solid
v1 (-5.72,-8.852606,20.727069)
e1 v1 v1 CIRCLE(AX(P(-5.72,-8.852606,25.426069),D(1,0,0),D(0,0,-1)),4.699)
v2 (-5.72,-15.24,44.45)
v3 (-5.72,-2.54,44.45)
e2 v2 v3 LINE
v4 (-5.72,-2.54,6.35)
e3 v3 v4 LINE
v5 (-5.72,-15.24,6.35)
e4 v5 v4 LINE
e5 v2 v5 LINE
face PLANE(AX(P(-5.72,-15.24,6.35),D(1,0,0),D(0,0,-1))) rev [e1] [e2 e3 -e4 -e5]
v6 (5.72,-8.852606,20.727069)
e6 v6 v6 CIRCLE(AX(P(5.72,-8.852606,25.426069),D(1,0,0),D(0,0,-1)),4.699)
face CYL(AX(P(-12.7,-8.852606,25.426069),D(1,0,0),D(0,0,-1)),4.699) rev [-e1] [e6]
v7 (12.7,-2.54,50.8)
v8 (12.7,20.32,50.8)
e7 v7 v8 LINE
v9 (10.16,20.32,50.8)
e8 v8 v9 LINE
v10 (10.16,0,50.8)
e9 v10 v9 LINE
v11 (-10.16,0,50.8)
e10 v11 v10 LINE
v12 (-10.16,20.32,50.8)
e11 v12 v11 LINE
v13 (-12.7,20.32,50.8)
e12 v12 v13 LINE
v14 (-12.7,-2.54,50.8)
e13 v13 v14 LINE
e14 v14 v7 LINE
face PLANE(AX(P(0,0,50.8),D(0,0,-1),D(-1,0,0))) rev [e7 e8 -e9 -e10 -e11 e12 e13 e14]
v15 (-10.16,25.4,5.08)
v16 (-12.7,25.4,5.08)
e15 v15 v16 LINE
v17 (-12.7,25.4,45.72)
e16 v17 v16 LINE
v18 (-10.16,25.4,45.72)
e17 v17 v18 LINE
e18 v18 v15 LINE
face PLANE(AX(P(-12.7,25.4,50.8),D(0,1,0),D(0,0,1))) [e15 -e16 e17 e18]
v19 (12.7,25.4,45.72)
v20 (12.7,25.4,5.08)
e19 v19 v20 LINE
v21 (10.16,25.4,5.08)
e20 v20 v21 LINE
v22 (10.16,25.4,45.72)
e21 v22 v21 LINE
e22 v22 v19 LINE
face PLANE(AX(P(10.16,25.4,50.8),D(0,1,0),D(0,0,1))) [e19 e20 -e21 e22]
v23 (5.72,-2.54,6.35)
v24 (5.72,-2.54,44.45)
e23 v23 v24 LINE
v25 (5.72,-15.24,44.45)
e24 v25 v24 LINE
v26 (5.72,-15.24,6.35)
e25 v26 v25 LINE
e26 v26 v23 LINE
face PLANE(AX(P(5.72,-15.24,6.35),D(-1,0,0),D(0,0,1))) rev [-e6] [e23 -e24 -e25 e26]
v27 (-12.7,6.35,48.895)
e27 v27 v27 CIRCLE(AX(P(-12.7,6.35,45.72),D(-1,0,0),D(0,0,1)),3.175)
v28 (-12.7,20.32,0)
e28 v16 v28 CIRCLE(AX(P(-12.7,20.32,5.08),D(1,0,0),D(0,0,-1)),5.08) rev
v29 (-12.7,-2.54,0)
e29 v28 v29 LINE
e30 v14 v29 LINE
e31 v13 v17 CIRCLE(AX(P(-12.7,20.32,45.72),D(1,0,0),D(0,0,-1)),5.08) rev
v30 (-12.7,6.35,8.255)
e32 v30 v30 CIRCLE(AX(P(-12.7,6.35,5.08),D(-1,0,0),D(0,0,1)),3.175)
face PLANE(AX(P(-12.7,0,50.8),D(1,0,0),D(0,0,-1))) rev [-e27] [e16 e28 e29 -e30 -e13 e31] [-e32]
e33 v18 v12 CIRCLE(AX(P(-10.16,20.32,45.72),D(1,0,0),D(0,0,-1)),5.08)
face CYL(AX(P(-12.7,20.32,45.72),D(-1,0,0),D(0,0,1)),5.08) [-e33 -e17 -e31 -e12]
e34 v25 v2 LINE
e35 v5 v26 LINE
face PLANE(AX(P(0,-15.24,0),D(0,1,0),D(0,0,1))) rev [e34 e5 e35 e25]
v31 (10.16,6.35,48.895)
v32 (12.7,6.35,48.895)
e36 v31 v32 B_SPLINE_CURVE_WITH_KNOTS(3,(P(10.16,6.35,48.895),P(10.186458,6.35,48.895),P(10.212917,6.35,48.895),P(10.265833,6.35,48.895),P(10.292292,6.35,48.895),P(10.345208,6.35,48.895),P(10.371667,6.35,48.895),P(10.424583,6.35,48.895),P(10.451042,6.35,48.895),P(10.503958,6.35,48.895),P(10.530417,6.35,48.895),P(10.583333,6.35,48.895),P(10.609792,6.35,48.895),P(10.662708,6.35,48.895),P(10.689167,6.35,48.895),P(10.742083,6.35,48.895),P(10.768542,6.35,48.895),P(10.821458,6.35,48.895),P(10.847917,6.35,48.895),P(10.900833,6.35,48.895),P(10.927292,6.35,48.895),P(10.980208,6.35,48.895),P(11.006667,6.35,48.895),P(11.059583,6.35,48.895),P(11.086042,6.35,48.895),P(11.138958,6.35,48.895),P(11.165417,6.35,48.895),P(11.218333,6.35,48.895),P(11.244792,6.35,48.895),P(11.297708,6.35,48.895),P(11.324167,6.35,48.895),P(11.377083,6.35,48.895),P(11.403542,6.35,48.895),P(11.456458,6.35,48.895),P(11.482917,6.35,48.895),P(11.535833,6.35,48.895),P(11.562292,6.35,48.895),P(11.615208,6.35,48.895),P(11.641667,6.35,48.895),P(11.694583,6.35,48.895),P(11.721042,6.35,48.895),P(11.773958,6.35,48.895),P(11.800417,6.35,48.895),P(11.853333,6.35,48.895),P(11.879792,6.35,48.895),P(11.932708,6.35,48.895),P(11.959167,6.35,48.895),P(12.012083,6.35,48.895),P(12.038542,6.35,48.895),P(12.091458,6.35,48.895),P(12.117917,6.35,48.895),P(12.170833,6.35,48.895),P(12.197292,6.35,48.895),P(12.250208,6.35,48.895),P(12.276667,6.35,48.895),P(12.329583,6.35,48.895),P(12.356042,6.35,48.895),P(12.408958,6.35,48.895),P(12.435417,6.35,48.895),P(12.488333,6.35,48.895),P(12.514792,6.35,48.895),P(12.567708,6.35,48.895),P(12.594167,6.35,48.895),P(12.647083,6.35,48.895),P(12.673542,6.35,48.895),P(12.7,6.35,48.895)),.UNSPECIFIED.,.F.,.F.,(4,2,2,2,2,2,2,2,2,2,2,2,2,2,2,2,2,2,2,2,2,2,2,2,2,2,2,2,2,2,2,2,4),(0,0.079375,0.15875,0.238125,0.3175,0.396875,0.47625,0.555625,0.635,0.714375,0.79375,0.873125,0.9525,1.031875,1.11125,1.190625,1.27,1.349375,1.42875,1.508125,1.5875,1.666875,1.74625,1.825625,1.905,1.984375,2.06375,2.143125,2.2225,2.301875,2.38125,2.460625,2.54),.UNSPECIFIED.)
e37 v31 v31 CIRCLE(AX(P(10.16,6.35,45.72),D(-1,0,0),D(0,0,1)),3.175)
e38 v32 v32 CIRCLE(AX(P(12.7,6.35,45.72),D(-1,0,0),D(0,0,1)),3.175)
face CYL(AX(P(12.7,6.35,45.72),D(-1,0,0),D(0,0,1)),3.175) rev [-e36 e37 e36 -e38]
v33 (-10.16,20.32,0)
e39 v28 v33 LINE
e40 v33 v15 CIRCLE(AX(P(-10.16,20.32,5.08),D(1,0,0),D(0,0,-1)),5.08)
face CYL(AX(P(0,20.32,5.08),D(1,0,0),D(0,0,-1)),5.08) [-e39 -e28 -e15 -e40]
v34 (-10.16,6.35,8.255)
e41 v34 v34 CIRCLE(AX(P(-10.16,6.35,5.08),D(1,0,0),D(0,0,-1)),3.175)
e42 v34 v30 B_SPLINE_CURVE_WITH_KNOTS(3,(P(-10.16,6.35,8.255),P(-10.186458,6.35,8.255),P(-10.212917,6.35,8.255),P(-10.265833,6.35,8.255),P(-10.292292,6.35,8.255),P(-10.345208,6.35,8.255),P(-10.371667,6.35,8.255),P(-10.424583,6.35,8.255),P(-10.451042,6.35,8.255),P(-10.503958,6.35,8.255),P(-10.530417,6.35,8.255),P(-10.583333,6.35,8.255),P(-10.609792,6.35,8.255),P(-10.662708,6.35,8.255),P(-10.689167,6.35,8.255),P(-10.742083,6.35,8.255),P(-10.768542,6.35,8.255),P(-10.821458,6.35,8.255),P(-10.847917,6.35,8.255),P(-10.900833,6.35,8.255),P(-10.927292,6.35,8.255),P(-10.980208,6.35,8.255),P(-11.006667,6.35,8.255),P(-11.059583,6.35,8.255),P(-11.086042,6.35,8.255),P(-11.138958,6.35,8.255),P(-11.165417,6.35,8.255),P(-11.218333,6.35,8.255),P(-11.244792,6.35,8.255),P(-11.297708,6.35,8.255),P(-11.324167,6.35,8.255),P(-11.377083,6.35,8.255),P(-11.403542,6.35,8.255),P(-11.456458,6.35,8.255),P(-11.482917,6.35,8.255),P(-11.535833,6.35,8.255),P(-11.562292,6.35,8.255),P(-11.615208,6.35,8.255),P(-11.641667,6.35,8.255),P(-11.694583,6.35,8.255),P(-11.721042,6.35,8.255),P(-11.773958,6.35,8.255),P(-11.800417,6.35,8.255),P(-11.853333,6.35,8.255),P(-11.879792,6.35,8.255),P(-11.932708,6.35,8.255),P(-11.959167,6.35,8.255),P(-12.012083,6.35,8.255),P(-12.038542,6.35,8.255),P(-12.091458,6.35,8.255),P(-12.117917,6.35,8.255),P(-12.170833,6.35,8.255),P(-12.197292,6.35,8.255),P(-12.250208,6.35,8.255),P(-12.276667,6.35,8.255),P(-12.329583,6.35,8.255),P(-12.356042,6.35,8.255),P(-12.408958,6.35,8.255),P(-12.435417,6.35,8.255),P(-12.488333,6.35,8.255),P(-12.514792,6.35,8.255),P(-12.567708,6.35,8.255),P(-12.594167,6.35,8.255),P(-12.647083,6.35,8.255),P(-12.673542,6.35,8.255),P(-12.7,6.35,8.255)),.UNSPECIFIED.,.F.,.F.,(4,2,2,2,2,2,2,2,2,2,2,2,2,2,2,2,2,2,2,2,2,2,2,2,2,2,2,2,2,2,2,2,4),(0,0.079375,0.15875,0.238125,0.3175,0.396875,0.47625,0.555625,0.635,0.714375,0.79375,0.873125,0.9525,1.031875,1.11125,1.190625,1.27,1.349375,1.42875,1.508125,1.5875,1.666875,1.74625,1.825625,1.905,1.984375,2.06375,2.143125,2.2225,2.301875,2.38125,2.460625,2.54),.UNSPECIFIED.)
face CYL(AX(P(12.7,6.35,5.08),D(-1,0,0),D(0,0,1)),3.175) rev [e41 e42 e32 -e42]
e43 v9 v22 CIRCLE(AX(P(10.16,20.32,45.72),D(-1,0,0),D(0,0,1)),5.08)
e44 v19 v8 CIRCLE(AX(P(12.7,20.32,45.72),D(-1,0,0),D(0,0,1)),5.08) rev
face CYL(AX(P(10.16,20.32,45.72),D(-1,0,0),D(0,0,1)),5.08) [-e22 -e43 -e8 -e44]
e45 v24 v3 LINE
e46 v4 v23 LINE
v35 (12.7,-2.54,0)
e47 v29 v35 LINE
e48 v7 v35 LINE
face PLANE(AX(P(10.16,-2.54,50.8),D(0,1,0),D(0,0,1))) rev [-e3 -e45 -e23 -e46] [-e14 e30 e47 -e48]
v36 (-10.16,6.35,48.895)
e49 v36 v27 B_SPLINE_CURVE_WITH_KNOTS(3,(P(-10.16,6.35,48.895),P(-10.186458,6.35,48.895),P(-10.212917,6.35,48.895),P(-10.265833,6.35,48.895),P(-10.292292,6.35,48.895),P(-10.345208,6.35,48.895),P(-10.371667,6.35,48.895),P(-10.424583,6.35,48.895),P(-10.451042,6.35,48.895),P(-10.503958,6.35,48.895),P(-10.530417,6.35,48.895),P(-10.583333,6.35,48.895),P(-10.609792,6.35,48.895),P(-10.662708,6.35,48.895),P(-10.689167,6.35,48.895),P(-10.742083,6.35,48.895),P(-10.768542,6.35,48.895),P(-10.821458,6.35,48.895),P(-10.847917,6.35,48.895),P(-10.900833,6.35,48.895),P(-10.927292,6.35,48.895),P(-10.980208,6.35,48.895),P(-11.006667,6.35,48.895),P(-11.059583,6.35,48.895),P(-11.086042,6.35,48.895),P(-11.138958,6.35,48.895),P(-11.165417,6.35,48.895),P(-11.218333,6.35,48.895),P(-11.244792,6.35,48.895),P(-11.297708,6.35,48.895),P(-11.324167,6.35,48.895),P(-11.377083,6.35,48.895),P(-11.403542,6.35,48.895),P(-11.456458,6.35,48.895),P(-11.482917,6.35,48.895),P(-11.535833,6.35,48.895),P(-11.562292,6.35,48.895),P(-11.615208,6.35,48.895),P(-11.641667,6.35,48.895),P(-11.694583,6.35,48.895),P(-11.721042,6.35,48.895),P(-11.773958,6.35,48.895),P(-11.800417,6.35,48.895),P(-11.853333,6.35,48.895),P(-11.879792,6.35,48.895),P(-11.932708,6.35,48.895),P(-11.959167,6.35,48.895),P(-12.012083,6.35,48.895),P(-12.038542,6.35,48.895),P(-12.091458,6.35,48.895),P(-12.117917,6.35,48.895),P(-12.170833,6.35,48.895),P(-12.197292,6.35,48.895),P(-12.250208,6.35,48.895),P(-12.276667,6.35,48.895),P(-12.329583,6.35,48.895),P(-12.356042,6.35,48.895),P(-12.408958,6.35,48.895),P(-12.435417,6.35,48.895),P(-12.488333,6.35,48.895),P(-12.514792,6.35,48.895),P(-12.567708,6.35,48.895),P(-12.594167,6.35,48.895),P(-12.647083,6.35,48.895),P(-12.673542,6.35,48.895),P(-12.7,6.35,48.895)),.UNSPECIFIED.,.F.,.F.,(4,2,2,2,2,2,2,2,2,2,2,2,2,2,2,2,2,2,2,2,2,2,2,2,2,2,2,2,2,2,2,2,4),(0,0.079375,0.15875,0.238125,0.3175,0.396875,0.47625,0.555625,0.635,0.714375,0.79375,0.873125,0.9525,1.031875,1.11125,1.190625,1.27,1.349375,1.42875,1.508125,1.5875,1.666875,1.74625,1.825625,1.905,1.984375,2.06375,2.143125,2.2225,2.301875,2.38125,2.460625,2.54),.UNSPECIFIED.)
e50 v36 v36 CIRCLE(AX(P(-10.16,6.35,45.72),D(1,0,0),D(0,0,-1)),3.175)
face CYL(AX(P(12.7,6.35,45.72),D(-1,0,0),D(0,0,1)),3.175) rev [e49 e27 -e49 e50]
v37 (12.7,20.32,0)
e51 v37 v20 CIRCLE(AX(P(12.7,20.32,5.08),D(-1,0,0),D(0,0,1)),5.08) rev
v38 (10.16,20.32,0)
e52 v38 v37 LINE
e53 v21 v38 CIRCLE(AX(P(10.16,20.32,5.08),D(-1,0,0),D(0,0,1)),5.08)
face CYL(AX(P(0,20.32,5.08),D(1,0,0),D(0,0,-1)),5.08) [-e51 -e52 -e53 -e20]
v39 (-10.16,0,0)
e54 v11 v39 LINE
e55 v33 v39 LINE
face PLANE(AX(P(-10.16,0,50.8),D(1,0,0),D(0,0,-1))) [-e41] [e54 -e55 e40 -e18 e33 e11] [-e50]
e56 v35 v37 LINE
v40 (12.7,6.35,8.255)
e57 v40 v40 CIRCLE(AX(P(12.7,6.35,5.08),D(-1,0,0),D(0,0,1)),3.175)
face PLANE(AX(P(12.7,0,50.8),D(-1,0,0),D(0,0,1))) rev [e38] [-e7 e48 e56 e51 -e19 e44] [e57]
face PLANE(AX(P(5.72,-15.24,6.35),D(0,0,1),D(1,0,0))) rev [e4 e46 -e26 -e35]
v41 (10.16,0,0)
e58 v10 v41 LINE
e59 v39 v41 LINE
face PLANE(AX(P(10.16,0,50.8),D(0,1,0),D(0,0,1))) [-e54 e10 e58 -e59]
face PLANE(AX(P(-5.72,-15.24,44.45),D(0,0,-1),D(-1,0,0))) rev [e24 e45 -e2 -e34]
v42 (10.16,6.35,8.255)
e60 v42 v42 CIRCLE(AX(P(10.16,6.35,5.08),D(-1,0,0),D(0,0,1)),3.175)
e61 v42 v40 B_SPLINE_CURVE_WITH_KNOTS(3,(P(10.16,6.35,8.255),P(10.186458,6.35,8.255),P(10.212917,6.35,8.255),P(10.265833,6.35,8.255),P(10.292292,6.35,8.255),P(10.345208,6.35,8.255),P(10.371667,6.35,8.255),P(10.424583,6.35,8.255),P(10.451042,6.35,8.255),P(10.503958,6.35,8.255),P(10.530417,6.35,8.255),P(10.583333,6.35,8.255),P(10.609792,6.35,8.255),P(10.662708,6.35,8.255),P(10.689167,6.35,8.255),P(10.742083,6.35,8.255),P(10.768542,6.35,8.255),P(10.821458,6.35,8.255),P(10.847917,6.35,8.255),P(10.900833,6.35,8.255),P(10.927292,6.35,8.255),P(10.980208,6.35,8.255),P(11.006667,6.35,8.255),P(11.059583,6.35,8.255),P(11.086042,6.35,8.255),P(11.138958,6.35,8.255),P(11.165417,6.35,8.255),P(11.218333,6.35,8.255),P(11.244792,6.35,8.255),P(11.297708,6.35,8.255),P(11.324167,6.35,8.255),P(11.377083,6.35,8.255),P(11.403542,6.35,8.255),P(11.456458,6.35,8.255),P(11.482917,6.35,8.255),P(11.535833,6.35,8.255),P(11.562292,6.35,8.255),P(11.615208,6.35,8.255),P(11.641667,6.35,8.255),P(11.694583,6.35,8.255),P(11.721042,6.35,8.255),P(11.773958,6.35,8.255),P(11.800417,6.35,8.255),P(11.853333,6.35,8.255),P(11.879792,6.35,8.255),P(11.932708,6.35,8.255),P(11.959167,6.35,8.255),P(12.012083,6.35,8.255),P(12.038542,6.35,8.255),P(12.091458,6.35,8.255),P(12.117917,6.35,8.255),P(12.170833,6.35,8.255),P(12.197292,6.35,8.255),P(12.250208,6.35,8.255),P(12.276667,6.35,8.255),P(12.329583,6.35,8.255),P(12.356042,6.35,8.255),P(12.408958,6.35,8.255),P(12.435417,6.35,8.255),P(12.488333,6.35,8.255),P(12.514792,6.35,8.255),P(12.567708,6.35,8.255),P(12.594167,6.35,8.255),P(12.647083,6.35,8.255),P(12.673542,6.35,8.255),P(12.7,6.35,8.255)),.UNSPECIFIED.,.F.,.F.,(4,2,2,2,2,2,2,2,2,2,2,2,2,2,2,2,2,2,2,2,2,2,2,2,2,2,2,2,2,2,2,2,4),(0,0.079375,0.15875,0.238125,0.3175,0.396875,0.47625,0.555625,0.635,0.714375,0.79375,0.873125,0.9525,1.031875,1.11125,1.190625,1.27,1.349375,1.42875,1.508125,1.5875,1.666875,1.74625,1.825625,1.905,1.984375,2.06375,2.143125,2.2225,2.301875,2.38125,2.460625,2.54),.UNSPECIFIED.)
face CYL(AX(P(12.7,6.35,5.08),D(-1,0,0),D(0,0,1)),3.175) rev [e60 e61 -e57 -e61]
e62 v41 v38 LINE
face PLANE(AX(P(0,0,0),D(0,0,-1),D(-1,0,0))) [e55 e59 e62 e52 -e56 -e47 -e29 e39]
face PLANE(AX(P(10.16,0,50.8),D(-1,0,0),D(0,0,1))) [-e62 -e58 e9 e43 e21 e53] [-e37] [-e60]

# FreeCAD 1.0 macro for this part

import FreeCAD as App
import Part
import Sketcher
from FreeCAD import Vector
Q = App.Units.Quantity


def edges_at(feature, points):
    """Names of the edges that pass closest to the given points."""
    edges = feature.Shape.Edges
    near = lambda p: min(range(len(edges)), key=lambda i: edges[i].distToShape(Part.Vertex(*p))[0])
    return sorted({f"Edge{near(p) + 1}" for p in points})


def add_polygon(sketch, points):
    """Adds a closed chain of lines whose ends are joined by coincident constraints."""
    first, n = sketch.GeometryCount, len(points)
    for a, b in zip(points, points[1:] + points[:1]):
        sketch.addGeometry(Part.LineSegment(App.Vector(*a, 0), App.Vector(*b, 0)), False)
    for i in range(n):
        sketch.addConstraint(Sketcher.Constraint("Coincident", first + i, 2, first + (i + 1) % n, 1))

doc = App.newDocument("Part")
params = doc.addObject("Spreadsheet::Sheet", "Params")
for row, (alias, value) in enumerate([
    ("sketch1_width", "1 in"),
    ("sketch1_width2", "0.8 in"),
    ("sketch1_height", "1.1 in"),
    ("pad1_length", "2 in"),
    ("fillet_radius", "0.2 in"),
    ("sketch2_diameter", "0.25 in"),
    ("sketch3_height", "1.5 in"),
    ("pad2_length", "0.5 in"),
    ("sketch4_diameter", "0.37 in"),
], start=1):
    params.set(f"A{row}", alias)
    params.set(f"B{row}", "=" + value)
    params.setAlias(f"B{row}", alias)

body = doc.addObject("PartDesign::Body", "Body")

sketch1 = doc.addObject("Sketcher::SketchObject", "Sketch")
body.addObject(sketch1)
sketch1.AttachmentSupport = (doc.XY_Plane, [""])
sketch1.MapMode = "FlatFace"
add_polygon(sketch1, [(10.2, 25.4), (10.2, 0), (-10.2, 0), (-10.2, 25.4), (-12.7, 25.4), (-12.7, -2.5), (12.7, -2.5), (12.7, 25.4)])
sketch1.addConstraint([
    Sketcher.Constraint("Vertical", 0),
    Sketcher.Constraint("Horizontal", 1),
    Sketcher.Constraint("Vertical", 2),
    Sketcher.Constraint("Horizontal", 3),
    Sketcher.Constraint("Vertical", 4),
    Sketcher.Constraint("Horizontal", 5),
    Sketcher.Constraint("Vertical", 6),
    Sketcher.Constraint("Horizontal", 7),
    Sketcher.Constraint("Symmetric", 0, 2, 1, 2, -1, 1),
    Sketcher.Constraint("Symmetric", 3, 2, 6, 2, -2),
    Sketcher.Constraint("Equal", 5, 0),
    Sketcher.Constraint("DistanceX", 5, 1, 5, 2, Q("1 in")),
    Sketcher.Constraint("DistanceX", 1, 2, 1, 1, Q("0.8 in")),
    Sketcher.Constraint("DistanceY", 4, 2, 4, 1, Q("1.1 in")),
])
sketch1.setExpression("Constraints[19]", "Params.sketch1_width")
sketch1.setExpression("Constraints[20]", "Params.sketch1_width2")
sketch1.setExpression("Constraints[21]", "Params.sketch1_height")
pad1 = doc.addObject("PartDesign::Pad", "Pad")
body.addObject(pad1)
pad1.Profile = sketch1
pad1.setExpression("Length", "Params.pad1_length")
doc.recompute()

fillet = doc.addObject("PartDesign::Fillet", "Fillet")
body.addObject(fillet)
fillet.Base = (pad1, edges_at(pad1, [
    (-11.43, 25.4, 50.8),
    (-11.43, 25.4, 0),
    (11.43, 25.4, 50.8),
    (11.43, 25.4, 0),
]))
fillet.setExpression("Radius", "Params.fillet_radius")

sketch2 = doc.addObject("Sketcher::SketchObject", "Sketch001")
body.addObject(sketch2)
sketch2.AttachmentSupport = (doc.YZ_Plane, [""])
sketch2.MapMode = "FlatFace"
sketch2.AttachmentOffset = App.Placement(Vector(0, 0, -0.5 * 25.4), App.Rotation())
sketch2.addGeometry([
    Part.Circle(Vector(6.3, 45.7, 0), Vector(0, 0, 1), 3.2),
    Part.Circle(Vector(6.3, 5.1, 0), Vector(0, 0, 1), 3.2),
], False)
sketch2.addConstraint([
    Sketcher.Constraint("Equal", 0, 1),
    Sketcher.Constraint("Vertical", 0, 3, 1, 3),
    Sketcher.Constraint("Diameter", 0, Q("0.25 in")),
    Sketcher.Constraint("DistanceY", -1, 1, 0, 3, Q("1.8 in")),
    Sketcher.Constraint("DistanceY", -1, 1, 1, 3, Q("0.2 in")),
    Sketcher.Constraint("DistanceX", -1, 1, 0, 3, Q("0.25 in")),
])
sketch2.setExpression("Constraints[2]", "Params.sketch2_diameter")
pocket1 = doc.addObject("PartDesign::Pocket", "Pocket")
body.addObject(pocket1)
pocket1.Profile = sketch2
pocket1.Type = "ThroughAll"
pocket1.Reversed = True

sketch3 = doc.addObject("Sketcher::SketchObject", "Sketch002")
body.addObject(sketch3)
sketch3.AttachmentSupport = (doc.XZ_Plane, [""])
sketch3.MapMode = "FlatFace"
sketch3.AttachmentOffset = App.Placement(Vector(0, 0, 0.1 * 25.4), App.Rotation())
add_polygon(sketch3, [(-6, 44), (-6, 6), (6, 6), (6, 44)])
sketch3.addConstraint([
    Sketcher.Constraint("Vertical", 0),
    Sketcher.Constraint("Horizontal", 1),
    Sketcher.Constraint("Vertical", 2),
    Sketcher.Constraint("Horizontal", 3),
    Sketcher.Constraint("DistanceY", 0, 2, 0, 1, Q("1.5 in")),
    Sketcher.Constraint("DistanceY", -1, 1, 0, 2, Q("0.25 in")),
    Sketcher.Constraint("DistanceX", 1, 1, 1, 2, Q("11.44 mm")),
    Sketcher.Constraint("DistanceX", 0, 2, -1, 1, Q("5.72 mm")),
])
sketch3.setExpression("Constraints[8]", "Params.sketch3_height")
pad2 = doc.addObject("PartDesign::Pad", "Pad001")
body.addObject(pad2)
pad2.Profile = sketch3
pad2.setExpression("Length", "Params.pad2_length")

sketch4 = doc.addObject("Sketcher::SketchObject", "Sketch003")
body.addObject(sketch4)
sketch4.AttachmentSupport = (doc.YZ_Plane, [""])
sketch4.MapMode = "FlatFace"
sketch4.AttachmentOffset = App.Placement(Vector(0, 0, 5.72), App.Rotation())
sketch4.addGeometry(Part.Circle(Vector(-8.9, 25.4, 0), Vector(0, 0, 1), 4.7), False)
sketch4.addConstraint([
    Sketcher.Constraint("Diameter", 0, Q("0.37 in")),
    Sketcher.Constraint("DistanceY", -1, 1, 0, 3, Q("25.426069 mm")),
    Sketcher.Constraint("DistanceX", 0, 3, -1, 1, Q("8.852606 mm")),
])
sketch4.setExpression("Constraints[0]", "Params.sketch4_diameter")
pocket2 = doc.addObject("PartDesign::Pocket", "Pocket001")
body.addObject(pocket2)
pocket2.Profile = sketch4
pocket2.Type = "ThroughAll"

doc.recompute()
